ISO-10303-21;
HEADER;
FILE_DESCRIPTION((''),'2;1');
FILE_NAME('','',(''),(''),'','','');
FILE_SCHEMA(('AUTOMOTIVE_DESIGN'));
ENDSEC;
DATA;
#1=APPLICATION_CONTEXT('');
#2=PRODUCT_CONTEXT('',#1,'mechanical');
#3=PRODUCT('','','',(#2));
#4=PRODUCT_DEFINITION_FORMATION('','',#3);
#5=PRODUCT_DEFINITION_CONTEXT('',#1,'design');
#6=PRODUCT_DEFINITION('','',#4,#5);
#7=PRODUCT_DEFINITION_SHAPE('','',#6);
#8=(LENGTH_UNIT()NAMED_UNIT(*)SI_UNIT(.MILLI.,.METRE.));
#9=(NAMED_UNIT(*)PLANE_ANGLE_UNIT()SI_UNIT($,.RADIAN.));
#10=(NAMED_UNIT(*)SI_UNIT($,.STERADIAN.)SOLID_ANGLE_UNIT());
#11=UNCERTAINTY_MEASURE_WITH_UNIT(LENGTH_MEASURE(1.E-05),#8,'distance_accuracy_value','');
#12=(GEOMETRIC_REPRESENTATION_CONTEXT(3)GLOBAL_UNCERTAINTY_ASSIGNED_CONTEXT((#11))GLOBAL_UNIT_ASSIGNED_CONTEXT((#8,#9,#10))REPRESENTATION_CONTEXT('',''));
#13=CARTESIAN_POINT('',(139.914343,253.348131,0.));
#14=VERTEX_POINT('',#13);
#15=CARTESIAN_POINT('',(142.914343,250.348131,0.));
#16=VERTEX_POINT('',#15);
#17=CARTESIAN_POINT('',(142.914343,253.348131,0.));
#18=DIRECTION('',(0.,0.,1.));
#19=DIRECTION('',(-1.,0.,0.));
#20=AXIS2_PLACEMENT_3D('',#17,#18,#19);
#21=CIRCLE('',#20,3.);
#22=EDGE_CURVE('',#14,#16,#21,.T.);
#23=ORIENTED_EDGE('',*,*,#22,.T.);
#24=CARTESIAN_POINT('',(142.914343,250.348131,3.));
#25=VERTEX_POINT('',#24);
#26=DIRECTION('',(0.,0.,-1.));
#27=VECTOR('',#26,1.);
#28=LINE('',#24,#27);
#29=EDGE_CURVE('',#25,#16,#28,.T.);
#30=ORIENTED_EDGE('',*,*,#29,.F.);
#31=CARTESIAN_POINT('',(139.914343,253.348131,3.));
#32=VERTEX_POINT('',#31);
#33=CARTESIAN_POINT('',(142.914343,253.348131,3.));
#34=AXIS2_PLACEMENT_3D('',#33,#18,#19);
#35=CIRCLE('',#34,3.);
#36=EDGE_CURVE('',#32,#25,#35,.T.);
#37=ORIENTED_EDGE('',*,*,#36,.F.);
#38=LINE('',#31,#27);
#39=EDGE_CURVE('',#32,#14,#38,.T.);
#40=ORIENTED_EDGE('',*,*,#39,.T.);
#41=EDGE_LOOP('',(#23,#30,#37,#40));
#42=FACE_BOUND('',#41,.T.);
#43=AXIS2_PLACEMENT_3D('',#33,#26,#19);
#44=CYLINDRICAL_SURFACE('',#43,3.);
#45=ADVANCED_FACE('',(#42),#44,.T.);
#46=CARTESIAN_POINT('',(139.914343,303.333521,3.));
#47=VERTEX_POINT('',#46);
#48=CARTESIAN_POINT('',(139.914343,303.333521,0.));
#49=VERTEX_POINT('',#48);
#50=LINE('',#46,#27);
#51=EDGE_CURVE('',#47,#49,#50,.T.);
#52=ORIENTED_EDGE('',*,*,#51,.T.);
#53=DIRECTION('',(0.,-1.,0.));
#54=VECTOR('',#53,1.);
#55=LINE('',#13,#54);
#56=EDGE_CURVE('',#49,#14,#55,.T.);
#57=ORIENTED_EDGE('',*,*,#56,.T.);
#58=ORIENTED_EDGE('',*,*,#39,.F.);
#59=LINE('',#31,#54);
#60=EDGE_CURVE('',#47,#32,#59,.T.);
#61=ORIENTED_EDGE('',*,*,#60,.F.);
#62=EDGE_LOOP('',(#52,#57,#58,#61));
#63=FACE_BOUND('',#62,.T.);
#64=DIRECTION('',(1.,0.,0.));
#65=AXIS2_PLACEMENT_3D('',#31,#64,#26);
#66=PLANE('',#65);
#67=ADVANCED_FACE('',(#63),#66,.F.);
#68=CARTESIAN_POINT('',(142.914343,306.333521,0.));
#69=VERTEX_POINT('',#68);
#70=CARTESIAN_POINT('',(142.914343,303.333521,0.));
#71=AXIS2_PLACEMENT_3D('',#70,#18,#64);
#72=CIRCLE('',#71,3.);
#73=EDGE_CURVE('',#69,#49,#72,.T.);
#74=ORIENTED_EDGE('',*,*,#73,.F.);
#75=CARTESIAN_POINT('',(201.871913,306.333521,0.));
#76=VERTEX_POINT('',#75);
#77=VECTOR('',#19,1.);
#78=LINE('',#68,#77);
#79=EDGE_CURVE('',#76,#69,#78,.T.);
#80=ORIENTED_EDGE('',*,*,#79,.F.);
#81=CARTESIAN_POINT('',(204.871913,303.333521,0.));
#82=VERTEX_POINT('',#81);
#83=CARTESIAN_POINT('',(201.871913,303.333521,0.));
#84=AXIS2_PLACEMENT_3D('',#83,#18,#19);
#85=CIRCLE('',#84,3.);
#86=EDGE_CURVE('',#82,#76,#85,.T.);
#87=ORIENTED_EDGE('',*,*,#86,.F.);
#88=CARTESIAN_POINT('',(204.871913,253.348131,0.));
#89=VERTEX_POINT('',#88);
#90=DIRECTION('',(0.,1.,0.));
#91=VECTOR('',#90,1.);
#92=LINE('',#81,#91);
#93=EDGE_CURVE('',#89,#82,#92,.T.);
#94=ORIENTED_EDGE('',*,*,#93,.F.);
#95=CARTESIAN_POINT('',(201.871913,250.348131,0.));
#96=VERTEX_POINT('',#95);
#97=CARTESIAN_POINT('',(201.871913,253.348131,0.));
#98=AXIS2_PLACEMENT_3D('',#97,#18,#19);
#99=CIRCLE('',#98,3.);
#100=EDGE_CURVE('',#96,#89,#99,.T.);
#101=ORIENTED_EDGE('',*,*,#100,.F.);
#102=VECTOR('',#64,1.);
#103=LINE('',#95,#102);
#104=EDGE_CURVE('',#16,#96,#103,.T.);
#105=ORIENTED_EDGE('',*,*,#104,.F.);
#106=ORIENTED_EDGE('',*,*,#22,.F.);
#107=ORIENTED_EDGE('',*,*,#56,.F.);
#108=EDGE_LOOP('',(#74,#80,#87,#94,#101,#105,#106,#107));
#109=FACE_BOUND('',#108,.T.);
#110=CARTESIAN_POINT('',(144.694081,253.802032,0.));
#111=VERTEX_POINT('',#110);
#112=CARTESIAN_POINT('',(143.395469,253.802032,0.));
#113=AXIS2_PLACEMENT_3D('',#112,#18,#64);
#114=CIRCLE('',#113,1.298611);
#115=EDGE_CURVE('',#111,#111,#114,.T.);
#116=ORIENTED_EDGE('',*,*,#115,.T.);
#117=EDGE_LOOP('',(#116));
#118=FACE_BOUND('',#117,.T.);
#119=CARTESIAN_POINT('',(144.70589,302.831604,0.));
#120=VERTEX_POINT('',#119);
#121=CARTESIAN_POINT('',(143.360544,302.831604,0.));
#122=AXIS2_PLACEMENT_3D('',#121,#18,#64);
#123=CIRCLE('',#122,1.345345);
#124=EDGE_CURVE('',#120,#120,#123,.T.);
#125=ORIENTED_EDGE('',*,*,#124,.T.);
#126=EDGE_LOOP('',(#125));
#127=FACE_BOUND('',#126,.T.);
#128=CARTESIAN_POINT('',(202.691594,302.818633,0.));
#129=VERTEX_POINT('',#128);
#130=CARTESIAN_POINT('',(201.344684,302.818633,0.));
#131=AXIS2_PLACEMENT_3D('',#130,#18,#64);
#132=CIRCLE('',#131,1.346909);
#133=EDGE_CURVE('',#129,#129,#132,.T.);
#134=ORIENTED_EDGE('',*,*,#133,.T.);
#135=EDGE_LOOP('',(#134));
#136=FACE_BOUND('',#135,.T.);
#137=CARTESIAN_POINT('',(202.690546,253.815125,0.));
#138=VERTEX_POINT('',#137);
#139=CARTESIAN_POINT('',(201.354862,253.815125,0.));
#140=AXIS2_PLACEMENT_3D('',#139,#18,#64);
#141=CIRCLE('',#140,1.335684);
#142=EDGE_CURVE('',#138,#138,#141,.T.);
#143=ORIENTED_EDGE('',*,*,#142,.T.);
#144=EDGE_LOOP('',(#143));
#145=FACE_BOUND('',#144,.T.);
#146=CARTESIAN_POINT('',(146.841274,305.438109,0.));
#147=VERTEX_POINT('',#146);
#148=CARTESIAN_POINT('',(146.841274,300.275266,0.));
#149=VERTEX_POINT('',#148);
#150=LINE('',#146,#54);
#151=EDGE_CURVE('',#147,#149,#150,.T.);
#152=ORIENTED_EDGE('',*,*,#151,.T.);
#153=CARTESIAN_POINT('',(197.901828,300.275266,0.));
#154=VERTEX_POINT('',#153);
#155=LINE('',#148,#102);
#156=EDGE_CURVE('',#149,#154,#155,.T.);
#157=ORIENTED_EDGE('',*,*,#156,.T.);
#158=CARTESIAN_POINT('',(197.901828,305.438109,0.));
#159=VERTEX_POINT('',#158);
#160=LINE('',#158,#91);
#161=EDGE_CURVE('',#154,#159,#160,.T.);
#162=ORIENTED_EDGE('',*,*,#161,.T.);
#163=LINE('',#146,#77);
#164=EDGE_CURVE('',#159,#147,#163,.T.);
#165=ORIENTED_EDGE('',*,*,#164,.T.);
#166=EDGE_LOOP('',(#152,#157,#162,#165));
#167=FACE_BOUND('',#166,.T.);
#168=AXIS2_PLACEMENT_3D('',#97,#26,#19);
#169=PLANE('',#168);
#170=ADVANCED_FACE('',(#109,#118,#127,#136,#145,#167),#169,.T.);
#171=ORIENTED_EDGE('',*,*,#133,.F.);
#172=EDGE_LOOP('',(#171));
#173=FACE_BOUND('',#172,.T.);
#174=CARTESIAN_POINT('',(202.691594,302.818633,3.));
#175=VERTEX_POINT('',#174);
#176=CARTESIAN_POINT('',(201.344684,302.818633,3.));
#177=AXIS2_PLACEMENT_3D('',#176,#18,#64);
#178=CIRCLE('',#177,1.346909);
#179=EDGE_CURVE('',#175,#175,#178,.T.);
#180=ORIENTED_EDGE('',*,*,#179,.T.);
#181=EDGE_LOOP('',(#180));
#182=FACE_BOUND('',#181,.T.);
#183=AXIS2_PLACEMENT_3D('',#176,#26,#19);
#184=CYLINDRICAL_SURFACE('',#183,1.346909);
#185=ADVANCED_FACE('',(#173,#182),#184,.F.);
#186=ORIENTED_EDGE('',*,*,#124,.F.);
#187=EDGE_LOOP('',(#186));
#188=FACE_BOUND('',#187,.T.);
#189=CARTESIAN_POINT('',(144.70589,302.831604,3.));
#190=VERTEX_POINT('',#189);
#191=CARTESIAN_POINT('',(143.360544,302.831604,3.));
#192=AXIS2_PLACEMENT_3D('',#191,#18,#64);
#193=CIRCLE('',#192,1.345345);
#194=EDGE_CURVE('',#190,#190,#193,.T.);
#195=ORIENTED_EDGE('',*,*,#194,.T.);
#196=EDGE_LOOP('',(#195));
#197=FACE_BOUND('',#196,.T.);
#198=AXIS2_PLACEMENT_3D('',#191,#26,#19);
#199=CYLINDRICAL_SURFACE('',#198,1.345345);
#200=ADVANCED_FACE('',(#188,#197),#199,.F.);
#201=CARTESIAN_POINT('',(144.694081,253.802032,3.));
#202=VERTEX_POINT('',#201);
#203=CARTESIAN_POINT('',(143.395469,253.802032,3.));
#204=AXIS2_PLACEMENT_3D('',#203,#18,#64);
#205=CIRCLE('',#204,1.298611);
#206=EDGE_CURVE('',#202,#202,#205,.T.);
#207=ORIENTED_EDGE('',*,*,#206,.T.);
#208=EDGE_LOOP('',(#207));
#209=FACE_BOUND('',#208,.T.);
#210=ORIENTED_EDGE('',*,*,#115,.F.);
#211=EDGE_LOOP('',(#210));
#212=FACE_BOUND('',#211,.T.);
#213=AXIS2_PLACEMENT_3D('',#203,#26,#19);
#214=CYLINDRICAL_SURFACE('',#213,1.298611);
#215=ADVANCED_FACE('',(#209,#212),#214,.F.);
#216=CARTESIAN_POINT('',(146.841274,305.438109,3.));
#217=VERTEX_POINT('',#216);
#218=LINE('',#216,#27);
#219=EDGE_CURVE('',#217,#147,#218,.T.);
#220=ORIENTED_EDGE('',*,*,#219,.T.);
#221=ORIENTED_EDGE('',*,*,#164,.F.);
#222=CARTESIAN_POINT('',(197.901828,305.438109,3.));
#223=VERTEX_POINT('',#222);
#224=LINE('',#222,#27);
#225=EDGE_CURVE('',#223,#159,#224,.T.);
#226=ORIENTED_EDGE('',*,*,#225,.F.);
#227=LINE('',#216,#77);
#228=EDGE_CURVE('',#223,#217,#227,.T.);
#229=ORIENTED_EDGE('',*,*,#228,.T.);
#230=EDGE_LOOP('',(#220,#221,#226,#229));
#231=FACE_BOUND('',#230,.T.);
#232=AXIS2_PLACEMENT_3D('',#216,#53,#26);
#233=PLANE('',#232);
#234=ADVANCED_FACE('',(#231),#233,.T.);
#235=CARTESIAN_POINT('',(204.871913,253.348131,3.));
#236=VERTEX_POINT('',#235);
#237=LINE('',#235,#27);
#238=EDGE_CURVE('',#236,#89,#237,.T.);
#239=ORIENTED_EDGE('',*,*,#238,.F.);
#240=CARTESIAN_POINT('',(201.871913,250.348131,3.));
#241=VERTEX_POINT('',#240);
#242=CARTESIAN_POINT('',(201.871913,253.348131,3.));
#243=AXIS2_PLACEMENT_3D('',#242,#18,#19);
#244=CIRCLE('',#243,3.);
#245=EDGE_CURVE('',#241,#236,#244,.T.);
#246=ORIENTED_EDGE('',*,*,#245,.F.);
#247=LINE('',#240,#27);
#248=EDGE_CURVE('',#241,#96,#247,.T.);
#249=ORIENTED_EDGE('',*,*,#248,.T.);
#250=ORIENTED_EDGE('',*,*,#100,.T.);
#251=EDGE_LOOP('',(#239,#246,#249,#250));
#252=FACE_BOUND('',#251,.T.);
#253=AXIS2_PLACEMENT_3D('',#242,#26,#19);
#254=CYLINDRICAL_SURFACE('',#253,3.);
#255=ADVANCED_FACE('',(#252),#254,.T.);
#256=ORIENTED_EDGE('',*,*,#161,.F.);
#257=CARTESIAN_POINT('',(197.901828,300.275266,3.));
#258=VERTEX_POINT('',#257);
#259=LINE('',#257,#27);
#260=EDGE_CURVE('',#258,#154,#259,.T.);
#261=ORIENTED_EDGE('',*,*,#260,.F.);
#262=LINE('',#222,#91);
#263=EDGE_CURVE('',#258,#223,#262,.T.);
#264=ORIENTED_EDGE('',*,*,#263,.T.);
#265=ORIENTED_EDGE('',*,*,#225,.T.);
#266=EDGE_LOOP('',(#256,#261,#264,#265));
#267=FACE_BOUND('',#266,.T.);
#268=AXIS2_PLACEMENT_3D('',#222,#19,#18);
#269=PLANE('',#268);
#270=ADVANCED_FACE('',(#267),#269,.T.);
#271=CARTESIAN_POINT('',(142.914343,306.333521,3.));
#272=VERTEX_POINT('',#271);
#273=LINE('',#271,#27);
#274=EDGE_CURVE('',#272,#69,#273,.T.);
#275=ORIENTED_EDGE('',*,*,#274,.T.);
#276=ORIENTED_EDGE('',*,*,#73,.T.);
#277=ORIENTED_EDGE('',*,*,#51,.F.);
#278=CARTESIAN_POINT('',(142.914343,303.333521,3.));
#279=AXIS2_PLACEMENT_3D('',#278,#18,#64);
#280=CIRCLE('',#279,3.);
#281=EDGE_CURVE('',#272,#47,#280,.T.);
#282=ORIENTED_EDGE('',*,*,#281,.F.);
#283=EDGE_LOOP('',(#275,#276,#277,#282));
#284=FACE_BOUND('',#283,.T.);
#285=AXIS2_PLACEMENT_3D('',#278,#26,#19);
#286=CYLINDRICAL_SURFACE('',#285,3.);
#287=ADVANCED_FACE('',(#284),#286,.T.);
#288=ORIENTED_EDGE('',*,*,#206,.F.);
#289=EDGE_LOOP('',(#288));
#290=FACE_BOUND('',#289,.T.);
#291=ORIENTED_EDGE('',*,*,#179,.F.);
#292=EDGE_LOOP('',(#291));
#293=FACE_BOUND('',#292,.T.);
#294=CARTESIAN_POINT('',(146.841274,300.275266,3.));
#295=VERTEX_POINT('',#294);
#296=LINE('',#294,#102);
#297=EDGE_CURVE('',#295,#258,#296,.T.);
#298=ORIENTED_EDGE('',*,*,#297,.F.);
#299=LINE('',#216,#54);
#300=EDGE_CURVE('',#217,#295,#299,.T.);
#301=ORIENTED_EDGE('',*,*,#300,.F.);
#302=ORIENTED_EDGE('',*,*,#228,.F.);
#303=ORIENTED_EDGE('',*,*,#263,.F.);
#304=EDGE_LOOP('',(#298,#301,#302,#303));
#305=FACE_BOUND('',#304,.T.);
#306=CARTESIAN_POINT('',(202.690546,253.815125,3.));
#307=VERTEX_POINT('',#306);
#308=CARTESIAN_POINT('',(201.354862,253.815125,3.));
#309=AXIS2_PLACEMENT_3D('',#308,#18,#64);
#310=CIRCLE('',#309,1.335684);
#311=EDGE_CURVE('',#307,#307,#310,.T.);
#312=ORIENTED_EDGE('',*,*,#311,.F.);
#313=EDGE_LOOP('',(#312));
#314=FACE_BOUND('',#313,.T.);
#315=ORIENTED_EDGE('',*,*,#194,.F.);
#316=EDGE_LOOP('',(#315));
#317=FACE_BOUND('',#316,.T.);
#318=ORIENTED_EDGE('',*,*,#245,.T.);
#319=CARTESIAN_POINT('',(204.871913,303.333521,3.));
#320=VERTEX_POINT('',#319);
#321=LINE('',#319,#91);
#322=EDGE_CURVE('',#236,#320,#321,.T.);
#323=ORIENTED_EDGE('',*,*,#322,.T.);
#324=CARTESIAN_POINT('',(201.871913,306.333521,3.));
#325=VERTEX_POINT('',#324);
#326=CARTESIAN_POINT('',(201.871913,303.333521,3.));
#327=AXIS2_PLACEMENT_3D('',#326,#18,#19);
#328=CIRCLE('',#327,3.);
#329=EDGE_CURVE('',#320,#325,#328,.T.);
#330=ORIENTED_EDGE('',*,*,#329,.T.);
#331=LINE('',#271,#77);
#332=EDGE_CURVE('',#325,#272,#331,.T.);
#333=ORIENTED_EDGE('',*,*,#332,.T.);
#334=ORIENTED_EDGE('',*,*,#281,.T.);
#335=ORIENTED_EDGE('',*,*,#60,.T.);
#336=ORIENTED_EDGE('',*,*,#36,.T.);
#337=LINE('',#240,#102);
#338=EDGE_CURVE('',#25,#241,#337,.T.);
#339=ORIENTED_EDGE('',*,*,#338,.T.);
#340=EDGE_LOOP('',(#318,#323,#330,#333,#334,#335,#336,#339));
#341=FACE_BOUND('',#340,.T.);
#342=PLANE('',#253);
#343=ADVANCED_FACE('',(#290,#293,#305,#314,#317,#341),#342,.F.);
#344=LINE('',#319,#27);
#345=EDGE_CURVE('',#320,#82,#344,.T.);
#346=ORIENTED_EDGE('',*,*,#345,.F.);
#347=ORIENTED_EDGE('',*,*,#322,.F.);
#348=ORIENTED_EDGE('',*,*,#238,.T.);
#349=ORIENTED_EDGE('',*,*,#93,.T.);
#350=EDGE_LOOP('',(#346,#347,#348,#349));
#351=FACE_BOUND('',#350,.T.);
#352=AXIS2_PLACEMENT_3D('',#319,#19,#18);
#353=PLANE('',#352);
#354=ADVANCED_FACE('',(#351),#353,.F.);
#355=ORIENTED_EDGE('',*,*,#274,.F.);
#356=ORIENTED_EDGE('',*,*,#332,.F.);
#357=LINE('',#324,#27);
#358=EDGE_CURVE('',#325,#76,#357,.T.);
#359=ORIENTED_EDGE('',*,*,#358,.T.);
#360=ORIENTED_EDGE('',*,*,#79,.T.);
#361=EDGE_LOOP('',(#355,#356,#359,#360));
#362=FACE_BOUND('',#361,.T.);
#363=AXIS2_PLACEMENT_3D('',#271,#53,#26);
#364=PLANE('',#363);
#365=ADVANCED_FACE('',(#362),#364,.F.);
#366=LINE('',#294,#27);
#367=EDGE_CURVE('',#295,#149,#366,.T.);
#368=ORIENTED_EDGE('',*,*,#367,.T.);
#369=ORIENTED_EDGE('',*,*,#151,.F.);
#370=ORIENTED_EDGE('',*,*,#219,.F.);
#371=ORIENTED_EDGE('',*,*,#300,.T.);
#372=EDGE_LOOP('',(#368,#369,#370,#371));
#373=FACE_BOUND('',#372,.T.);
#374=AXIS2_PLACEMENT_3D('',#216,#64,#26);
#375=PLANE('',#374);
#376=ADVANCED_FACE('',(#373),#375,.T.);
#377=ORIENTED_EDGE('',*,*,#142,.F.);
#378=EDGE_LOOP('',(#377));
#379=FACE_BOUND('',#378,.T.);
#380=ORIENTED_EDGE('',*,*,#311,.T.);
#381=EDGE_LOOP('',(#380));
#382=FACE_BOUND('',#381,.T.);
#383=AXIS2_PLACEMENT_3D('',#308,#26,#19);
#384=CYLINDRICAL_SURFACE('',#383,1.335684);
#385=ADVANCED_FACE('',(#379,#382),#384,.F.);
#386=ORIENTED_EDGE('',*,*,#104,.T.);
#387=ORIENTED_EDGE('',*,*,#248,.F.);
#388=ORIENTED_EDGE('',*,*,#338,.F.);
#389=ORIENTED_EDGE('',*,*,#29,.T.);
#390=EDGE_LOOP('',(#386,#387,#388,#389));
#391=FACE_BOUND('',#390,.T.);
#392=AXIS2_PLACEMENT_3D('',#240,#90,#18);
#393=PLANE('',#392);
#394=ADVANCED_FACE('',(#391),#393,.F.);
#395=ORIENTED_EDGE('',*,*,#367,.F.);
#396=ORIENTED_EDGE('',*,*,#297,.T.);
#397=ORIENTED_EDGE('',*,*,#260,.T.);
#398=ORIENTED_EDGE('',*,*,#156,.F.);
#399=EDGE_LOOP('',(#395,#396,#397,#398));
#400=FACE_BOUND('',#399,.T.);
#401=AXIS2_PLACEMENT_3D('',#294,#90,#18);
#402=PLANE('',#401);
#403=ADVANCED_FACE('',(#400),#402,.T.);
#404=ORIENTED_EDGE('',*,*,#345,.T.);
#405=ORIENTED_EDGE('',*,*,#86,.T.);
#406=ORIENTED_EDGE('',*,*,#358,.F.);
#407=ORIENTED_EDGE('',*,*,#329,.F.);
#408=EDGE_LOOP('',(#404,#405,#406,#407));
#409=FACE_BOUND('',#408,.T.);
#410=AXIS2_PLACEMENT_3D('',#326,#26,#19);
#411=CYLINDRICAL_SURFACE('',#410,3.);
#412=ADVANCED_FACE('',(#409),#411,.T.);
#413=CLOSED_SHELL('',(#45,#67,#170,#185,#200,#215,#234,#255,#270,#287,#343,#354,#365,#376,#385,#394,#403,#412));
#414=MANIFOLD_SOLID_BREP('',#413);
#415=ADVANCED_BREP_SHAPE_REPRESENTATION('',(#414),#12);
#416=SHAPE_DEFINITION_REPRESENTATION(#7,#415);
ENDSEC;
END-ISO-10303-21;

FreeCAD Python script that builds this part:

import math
import FreeCAD as App
import Part
import Sketcher
from FreeCAD import Vector
Q = App.Units.Quantity


def add_polygon(sketch, points):
    """Adds a closed chain of lines whose ends are joined by coincident constraints."""
    first, n = sketch.GeometryCount, len(points)
    for a, b in zip(points, points[1:] + points[:1]):
        sketch.addGeometry(Part.LineSegment(App.Vector(*a, 0), App.Vector(*b, 0)), False)
    for i in range(n):
        sketch.addConstraint(Sketcher.Constraint("Coincident", first + i, 2, first + (i + 1) % n, 1))

doc = App.newDocument("Part")
body = doc.addObject("PartDesign::Body", "Body")

# Sketch on XY plane
sketch1 = doc.addObject("Sketcher::SketchObject", "Sketch")
body.addObject(sketch1)
sketch1.AttachmentSupport = (doc.XY_Plane, [""])
sketch1.MapMode = "FlatFace"
sketch1.addGeometry(Part.LineSegment(Vector(201.9, 306.3, 0), Vector(142.9, 306.3, 0)), False)  # 0
sketch1.addGeometry(Part.ArcOfCircle(Part.Circle(Vector(142.9, 303.3, 0), Vector(0, 0, 1), 3), math.radians(90), math.radians(180)), False)  # 1
sketch1.addGeometry(Part.LineSegment(Vector(139.9, 303.3, 0), Vector(139.9, 253.3, 0)), False)  # 2
sketch1.addGeometry(Part.ArcOfCircle(Part.Circle(Vector(142.9, 253.3, 0), Vector(0, 0, 1), 3), math.radians(-180), math.radians(-90)), False)  # 3
sketch1.addGeometry(Part.LineSegment(Vector(142.9, 250.3, 0), Vector(201.9, 250.3, 0)), False)  # 4
sketch1.addGeometry(Part.ArcOfCircle(Part.Circle(Vector(201.9, 253.3, 0), Vector(0, 0, 1), 3), math.radians(-90), math.radians(0)), False)  # 5
sketch1.addGeometry(Part.LineSegment(Vector(204.9, 253.3, 0), Vector(204.9, 303.3, 0)), False)  # 6
sketch1.addGeometry(Part.ArcOfCircle(Part.Circle(Vector(201.9, 303.3, 0), Vector(0, 0, 1), 3), math.radians(0), math.radians(90)), False)  # 7
sketch1.addGeometry(Part.Circle(Vector(201.4, 253.8, 0), Vector(0, 0, 1), 1.3), False)  # 8
sketch1.addGeometry(Part.Circle(Vector(143.4, 253.8, 0), Vector(0, 0, 1), 1.3), False)  # 9
sketch1.addGeometry(Part.Circle(Vector(201.3, 302.8, 0), Vector(0, 0, 1), 1.3), False)  # 10
add_polygon(sketch1, [(146.8, 300.3), (146.8, 305.4), (197.9, 305.4), (197.9, 300.3)])  # lines 11-14
sketch1.addGeometry(Part.Circle(Vector(143.4, 302.8, 0), Vector(0, 0, 1), 1.3), False)  # 15
sketch1.addConstraint([
    Sketcher.Constraint("Tangent", 0, 2, 1, 1),
    Sketcher.Constraint("Tangent", 1, 2, 2, 1),
    Sketcher.Constraint("Tangent", 2, 2, 3, 1),
    Sketcher.Constraint("Tangent", 3, 2, 4, 1),
    Sketcher.Constraint("Tangent", 4, 2, 5, 1),
    Sketcher.Constraint("Tangent", 5, 2, 6, 1),
    Sketcher.Constraint("Tangent", 6, 2, 7, 1),
    Sketcher.Constraint("Tangent", 7, 2, 0, 1),
    Sketcher.Constraint("Horizontal", 0),
    Sketcher.Constraint("Vertical", 2),
    Sketcher.Constraint("Horizontal", 4),
    Sketcher.Constraint("Vertical", 6),
    Sketcher.Constraint("Vertical", 11),
    Sketcher.Constraint("Horizontal", 12),
    Sketcher.Constraint("Vertical", 13),
    Sketcher.Constraint("Horizontal", 14),
    Sketcher.Constraint("Equal", 1, 3),
    Sketcher.Constraint("Equal", 3, 5),
    Sketcher.Constraint("Equal", 5, 7),
    Sketcher.Constraint("Radius", 1, Q("3 mm")),
    Sketcher.Constraint("Diameter", 10, Q("2.693818 mm")),
    Sketcher.Constraint("Diameter", 15, Q("2.69069 mm")),
    Sketcher.Constraint("Diameter", 8, Q("2.671368 mm")),
    Sketcher.Constraint("Diameter", 9, Q("2.597223 mm")),
    Sketcher.Constraint("DistanceX", 0, 2, 0, 1, Q("58.95757 mm")),
    Sketcher.Constraint("DistanceY", 2, 2, 2, 1, Q("49.98539 mm")),
    Sketcher.Constraint("DistanceY", 3, 3, 9, 3, Q("0.453901 mm")),
    Sketcher.Constraint("DistanceY", 9, 3, 10, 3, Q("49.016601 mm")),
    Sketcher.Constraint("DistanceX", 1, 3, 15, 3, Q("0.446201 mm")),
    Sketcher.Constraint("DistanceX", 12, 1, 12, 2, Q("51.060554 mm")),
    Sketcher.Constraint("DistanceY", 11, 1, 11, 2, Q("5.162843 mm")),
    Sketcher.Constraint("DistanceY", -1, 1, 1, 3, Q("303.333521 mm")),
    Sketcher.Constraint("DistanceX", -1, 1, 9, 3, Q("143.395469 mm")),
    Sketcher.Constraint("DistanceY", -1, 1, 11, 2, Q("305.438109 mm")),
    Sketcher.Constraint("DistanceX", -1, 1, 12, 2, Q("197.901828 mm")),
    Sketcher.Constraint("DistanceX", 8, 3, 5, 3, Q("0.517051 mm")),
    Sketcher.Constraint("DistanceX", 10, 3, 7, 3, Q("0.527229 mm")),
    Sketcher.Constraint("DistanceY", 8, 3, 10, 3, Q("49.003508 mm")),
    Sketcher.Constraint("DistanceY", 10, 3, 15, 3, Q("0.012971 mm")),
    Sketcher.Constraint("DistanceX", 0, 2, 11, 2, Q("3.926931 mm")),
])
pad1 = doc.addObject("PartDesign::Pad", "Pad")
body.addObject(pad1)
pad1.Profile = sketch1
pad1.Length = 3

doc.recompute()
